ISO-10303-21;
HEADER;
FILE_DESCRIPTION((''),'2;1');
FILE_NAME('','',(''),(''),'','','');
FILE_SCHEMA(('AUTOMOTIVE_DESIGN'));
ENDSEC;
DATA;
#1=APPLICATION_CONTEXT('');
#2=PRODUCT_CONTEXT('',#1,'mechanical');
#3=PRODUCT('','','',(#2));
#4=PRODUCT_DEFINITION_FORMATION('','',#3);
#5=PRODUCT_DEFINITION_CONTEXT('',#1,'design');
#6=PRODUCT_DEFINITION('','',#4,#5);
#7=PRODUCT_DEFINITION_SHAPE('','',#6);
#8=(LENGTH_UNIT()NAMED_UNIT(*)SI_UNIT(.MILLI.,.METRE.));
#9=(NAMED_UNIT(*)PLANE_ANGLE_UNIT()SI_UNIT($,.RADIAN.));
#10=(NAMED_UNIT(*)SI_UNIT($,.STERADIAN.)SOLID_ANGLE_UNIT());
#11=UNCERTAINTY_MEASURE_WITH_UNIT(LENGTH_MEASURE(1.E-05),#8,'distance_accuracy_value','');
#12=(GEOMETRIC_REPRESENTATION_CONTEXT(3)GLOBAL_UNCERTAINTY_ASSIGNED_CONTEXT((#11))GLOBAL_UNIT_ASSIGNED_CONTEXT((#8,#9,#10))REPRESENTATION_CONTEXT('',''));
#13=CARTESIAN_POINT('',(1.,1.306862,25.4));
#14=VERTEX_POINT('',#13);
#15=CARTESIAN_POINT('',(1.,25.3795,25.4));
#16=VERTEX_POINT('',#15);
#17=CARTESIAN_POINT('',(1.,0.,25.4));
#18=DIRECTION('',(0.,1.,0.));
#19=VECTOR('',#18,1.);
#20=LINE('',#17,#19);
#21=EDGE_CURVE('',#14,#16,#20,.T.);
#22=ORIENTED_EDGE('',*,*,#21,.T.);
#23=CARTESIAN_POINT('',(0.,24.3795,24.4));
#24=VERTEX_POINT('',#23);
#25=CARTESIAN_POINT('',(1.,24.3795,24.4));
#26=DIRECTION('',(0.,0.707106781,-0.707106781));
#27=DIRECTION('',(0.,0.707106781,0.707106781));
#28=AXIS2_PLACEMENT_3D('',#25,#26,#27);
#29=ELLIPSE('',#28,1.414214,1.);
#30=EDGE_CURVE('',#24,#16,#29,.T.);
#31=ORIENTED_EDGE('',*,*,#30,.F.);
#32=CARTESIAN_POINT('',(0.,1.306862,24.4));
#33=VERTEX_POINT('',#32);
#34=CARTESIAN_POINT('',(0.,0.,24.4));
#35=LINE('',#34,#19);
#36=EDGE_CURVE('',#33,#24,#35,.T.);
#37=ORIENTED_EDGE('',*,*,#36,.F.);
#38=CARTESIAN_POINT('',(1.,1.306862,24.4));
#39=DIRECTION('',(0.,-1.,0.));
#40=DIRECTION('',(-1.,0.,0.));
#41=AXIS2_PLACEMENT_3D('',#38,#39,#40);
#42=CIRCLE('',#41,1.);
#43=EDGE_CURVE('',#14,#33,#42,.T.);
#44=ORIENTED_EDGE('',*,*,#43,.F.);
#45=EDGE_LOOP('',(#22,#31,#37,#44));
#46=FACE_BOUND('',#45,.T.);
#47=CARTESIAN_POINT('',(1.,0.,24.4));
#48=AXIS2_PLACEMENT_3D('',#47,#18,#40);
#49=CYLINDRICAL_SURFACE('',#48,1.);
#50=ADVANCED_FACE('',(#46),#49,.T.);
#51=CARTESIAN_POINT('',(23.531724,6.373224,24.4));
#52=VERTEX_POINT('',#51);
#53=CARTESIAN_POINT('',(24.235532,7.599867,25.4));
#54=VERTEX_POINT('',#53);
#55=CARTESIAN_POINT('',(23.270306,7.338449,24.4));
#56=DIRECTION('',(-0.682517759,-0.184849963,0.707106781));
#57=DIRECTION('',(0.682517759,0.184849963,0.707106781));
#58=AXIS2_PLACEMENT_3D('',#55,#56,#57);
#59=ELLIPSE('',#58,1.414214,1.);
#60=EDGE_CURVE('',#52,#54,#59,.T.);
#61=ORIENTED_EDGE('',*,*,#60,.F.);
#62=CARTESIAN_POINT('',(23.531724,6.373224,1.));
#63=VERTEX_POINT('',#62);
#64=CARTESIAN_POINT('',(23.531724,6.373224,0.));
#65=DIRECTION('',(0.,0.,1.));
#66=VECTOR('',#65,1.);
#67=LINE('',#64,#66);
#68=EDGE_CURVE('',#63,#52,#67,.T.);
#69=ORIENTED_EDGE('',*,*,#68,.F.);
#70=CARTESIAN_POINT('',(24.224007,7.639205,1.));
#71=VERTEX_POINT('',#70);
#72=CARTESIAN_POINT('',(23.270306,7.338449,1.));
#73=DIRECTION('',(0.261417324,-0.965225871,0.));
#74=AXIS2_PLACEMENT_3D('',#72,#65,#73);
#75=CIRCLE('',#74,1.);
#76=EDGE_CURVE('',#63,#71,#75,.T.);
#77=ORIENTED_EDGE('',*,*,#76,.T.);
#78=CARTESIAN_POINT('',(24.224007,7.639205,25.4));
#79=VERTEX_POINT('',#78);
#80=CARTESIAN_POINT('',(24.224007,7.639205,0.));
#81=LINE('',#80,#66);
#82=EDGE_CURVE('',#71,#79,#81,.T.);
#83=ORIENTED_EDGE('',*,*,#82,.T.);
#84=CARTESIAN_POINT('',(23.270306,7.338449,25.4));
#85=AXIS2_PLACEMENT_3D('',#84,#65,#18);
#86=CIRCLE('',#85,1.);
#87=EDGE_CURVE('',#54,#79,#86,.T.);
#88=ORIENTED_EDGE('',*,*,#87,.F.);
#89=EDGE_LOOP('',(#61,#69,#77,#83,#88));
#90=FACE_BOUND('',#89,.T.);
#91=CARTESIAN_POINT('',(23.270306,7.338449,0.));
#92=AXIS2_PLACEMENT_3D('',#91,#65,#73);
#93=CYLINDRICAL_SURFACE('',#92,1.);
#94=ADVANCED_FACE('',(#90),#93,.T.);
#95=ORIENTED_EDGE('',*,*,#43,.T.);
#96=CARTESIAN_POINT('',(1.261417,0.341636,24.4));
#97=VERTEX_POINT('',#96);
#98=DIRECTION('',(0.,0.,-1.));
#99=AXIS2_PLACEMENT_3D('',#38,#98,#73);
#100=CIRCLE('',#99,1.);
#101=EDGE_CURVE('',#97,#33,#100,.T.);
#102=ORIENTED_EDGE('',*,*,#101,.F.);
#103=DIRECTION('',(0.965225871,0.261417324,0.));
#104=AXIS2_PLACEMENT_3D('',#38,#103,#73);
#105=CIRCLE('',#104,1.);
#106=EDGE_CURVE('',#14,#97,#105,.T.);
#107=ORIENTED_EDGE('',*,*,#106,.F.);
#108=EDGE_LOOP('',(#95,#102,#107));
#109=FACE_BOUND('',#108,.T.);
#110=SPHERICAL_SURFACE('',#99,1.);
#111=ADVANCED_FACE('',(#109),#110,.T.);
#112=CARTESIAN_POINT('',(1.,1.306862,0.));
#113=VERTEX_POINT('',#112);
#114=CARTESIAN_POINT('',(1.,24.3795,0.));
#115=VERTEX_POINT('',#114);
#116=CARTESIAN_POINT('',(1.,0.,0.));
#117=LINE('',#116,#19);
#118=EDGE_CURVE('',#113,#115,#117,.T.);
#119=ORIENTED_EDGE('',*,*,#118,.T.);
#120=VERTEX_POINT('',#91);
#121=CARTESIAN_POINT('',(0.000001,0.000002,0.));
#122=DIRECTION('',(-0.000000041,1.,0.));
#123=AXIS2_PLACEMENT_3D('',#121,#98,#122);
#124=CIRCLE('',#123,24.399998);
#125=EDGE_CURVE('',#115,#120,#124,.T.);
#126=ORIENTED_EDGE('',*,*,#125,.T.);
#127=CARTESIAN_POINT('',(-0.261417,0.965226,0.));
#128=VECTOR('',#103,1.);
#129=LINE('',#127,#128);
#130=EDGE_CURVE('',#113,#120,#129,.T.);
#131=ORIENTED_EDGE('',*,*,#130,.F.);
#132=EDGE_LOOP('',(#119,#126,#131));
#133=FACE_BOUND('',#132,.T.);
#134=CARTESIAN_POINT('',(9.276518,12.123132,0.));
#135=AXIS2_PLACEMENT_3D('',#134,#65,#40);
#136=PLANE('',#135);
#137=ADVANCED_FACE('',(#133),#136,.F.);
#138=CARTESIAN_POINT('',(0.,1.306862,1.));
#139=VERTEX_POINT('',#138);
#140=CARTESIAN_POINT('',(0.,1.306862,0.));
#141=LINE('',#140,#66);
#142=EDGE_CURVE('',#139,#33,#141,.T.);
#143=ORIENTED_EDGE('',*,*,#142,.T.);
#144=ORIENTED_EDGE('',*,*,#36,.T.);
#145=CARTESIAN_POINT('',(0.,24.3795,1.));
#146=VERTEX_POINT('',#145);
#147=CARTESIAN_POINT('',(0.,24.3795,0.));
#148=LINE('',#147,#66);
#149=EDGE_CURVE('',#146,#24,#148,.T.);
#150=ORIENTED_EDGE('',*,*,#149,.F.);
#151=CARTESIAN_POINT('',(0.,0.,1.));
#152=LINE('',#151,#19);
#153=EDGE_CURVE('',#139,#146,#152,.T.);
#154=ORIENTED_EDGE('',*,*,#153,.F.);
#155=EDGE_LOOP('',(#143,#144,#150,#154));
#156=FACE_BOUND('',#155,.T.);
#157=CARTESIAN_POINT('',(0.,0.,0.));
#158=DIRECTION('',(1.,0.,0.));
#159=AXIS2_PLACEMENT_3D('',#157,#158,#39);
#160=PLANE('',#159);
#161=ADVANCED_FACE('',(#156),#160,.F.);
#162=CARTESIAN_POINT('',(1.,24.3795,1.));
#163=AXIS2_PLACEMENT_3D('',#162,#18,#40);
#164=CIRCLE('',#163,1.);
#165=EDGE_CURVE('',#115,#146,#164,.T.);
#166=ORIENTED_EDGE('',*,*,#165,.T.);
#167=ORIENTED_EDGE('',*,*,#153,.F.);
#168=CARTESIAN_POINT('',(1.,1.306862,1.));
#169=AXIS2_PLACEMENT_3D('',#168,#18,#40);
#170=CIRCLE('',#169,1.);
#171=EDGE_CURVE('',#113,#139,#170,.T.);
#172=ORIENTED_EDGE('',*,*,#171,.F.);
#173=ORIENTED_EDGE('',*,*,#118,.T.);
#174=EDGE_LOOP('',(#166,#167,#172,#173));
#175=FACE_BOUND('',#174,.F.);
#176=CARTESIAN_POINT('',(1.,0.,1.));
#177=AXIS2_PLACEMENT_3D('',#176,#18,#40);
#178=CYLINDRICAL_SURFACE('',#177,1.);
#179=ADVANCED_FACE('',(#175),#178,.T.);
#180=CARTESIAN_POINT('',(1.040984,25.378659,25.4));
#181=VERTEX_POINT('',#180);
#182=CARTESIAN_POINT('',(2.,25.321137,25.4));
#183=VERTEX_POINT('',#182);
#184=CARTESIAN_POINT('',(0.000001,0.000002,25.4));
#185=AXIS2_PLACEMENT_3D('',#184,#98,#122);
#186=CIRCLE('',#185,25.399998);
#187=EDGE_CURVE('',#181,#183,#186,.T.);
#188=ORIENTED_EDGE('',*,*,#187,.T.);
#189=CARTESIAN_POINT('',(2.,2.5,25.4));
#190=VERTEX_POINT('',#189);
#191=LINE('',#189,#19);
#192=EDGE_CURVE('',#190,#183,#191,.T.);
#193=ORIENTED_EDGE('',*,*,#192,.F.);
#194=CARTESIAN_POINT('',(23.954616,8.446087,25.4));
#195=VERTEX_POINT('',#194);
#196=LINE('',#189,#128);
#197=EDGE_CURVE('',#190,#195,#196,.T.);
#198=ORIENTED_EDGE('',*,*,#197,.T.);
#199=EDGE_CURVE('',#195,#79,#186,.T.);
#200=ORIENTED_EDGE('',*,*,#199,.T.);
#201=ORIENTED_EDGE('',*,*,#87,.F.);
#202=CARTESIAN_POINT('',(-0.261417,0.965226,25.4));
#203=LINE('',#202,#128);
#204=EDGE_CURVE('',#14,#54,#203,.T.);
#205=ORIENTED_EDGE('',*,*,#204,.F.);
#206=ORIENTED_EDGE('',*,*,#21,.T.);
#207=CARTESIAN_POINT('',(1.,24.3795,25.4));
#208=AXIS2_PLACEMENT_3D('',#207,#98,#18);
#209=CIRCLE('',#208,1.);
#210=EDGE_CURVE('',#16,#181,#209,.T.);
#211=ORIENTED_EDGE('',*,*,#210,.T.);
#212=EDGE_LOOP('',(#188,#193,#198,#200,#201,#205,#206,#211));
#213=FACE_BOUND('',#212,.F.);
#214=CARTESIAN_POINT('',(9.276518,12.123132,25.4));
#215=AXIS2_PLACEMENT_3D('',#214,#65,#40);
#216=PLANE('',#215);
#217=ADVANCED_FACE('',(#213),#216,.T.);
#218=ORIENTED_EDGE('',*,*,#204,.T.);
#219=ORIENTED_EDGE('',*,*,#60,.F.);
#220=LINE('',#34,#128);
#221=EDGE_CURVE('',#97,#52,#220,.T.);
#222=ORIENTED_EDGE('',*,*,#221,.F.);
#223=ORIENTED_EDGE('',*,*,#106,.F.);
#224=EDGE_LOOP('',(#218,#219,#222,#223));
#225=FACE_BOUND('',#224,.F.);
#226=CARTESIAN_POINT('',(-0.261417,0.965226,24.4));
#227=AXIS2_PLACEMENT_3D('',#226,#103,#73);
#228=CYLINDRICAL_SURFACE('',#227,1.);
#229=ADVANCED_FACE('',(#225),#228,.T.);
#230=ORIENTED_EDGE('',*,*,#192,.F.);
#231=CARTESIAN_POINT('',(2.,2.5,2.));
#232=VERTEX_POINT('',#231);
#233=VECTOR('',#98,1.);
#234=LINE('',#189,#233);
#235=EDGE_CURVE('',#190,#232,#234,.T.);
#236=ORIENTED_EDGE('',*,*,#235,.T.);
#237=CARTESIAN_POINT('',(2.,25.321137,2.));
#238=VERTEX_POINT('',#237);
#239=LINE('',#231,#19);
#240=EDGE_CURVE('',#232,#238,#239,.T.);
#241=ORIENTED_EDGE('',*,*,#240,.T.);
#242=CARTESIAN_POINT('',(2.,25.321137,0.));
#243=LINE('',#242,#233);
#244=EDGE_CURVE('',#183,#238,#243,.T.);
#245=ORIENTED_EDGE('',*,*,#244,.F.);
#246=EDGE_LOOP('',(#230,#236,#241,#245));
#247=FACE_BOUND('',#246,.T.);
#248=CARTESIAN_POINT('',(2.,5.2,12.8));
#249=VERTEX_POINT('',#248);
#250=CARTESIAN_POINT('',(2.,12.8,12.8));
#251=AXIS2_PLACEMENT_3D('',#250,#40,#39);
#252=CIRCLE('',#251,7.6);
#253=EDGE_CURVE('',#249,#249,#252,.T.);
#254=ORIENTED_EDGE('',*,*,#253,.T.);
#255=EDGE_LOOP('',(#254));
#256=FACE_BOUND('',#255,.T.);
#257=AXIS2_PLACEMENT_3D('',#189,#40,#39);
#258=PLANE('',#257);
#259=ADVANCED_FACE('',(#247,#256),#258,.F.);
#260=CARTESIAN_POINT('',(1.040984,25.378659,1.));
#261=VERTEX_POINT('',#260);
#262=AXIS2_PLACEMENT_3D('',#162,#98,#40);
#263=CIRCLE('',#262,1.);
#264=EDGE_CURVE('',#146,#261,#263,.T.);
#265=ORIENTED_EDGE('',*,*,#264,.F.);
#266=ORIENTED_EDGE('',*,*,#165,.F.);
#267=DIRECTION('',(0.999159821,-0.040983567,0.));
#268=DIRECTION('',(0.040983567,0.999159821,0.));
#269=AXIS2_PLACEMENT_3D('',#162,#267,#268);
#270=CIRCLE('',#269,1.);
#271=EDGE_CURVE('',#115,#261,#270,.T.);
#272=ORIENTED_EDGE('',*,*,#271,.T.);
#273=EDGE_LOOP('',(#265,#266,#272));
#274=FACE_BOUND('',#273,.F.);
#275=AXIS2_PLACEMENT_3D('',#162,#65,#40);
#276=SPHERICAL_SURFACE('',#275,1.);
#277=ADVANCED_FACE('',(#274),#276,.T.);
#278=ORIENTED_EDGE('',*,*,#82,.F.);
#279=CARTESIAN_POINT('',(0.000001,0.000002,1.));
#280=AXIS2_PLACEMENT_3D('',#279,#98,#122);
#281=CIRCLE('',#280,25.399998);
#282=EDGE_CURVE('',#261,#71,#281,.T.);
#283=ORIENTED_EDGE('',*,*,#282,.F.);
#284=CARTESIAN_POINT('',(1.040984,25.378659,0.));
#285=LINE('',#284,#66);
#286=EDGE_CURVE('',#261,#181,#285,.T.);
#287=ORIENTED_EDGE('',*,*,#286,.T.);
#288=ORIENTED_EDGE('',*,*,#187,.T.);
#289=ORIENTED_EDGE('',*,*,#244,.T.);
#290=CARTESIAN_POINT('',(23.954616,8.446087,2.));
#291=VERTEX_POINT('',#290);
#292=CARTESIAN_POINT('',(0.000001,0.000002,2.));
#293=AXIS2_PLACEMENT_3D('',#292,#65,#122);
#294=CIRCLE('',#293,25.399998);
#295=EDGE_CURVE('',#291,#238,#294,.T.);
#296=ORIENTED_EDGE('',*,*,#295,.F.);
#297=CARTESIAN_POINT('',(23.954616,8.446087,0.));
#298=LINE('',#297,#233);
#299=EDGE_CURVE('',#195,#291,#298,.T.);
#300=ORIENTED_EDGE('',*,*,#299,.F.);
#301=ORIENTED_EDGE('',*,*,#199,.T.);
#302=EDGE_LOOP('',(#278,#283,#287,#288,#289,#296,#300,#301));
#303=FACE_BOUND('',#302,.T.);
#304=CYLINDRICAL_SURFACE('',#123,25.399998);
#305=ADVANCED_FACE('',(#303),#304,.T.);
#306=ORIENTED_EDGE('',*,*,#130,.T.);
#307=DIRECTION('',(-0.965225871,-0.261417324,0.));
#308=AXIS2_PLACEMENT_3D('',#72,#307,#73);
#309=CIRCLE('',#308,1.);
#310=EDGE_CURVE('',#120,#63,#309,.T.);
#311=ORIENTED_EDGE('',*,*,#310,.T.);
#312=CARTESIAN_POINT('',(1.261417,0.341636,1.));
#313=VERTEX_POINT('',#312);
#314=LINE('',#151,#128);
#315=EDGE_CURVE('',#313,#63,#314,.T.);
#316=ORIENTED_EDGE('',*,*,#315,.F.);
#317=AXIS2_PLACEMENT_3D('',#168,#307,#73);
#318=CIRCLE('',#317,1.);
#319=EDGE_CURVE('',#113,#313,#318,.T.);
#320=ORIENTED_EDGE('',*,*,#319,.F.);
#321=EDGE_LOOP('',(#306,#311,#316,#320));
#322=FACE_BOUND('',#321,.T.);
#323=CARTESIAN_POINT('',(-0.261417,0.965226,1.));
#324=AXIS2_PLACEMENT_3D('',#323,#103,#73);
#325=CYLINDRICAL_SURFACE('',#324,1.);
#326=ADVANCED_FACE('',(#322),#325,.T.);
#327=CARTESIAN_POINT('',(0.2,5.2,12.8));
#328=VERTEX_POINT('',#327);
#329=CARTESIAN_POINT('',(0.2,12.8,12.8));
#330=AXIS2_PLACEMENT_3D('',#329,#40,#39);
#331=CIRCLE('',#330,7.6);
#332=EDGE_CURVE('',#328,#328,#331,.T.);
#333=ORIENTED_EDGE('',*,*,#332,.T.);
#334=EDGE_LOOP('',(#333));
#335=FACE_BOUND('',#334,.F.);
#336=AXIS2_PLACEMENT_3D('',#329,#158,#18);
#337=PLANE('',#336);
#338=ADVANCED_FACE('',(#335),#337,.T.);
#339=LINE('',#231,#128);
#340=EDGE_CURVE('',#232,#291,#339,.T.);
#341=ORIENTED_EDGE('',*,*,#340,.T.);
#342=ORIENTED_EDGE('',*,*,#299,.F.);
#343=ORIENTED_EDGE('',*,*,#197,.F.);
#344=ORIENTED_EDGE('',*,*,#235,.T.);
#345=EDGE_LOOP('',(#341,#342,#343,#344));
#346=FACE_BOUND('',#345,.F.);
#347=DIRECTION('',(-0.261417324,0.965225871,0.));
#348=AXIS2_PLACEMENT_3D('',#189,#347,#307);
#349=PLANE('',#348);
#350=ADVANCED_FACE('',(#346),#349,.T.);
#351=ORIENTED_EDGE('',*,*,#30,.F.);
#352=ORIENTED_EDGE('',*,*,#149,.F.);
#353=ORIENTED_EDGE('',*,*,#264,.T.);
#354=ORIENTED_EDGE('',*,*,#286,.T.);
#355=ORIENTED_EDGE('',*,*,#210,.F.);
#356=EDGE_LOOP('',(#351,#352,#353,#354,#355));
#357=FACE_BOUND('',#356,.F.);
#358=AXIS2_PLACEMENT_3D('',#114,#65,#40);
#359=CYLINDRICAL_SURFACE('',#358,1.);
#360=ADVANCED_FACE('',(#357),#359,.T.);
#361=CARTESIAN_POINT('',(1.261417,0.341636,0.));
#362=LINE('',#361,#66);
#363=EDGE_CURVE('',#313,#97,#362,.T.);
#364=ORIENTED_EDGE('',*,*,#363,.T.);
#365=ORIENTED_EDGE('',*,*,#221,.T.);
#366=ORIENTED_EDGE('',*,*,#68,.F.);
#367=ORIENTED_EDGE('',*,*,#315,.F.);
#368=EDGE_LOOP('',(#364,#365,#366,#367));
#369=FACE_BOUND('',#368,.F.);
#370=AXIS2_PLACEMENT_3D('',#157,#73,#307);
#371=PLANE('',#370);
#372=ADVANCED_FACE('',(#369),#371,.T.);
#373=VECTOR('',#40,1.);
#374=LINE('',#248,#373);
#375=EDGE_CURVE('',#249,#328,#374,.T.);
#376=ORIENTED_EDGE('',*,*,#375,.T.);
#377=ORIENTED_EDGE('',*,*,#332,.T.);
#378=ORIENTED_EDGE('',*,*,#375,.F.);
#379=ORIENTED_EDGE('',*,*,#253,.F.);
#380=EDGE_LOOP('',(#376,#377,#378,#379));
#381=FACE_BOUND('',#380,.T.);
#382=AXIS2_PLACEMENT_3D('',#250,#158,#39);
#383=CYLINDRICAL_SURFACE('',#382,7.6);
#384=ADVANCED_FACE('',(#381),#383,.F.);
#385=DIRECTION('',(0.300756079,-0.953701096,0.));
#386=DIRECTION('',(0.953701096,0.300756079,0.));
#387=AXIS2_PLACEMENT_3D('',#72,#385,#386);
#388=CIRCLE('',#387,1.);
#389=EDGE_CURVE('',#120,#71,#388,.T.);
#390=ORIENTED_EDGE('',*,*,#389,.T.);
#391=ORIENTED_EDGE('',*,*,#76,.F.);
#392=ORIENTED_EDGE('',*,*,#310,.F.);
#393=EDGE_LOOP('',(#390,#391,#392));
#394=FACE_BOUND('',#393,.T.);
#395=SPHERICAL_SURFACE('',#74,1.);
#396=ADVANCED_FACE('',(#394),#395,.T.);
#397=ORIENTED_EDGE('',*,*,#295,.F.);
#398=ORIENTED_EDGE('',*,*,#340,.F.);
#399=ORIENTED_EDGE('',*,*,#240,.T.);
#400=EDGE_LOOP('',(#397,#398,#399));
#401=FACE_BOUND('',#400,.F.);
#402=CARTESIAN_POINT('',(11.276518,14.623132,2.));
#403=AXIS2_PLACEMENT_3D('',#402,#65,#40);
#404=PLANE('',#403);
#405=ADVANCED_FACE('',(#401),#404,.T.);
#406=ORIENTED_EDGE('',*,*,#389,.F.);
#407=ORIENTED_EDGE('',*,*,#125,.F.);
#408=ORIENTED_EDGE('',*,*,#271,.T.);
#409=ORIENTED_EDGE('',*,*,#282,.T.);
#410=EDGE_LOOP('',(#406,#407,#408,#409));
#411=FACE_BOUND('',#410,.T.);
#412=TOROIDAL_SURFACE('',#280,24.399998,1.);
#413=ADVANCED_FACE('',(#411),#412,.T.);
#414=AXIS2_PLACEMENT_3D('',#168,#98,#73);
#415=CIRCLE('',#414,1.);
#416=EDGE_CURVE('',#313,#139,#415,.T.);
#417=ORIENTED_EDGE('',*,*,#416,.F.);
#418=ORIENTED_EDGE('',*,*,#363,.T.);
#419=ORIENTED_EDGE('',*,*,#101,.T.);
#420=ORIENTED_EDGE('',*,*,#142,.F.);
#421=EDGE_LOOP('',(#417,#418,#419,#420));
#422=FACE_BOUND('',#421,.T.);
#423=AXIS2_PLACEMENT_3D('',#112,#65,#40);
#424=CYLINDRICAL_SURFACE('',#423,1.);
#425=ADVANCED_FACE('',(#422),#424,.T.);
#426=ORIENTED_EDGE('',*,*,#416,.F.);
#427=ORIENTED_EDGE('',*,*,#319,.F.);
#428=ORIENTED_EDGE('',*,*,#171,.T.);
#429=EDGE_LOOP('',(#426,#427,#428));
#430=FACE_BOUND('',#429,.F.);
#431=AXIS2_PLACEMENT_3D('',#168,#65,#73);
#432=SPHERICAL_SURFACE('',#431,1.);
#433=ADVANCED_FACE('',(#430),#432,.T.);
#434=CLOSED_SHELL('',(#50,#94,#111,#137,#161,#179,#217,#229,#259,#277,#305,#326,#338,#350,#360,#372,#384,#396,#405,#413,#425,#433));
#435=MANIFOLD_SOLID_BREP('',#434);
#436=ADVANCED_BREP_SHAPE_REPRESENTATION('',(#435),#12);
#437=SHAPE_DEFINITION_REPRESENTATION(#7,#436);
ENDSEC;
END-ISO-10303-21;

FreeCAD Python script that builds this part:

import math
import FreeCAD as App
import Part
import Sketcher
from FreeCAD import Vector
Q = App.Units.Quantity


def edges_at(feature, points):
    """Names of the edges that pass closest to the given points."""
    edges = feature.Shape.Edges
    near = lambda p: min(range(len(edges)), key=lambda i: edges[i].distToShape(Part.Vertex(*p))[0])
    return sorted({f"Edge{near(p) + 1}" for p in points})

doc = App.newDocument("Part")
params = doc.addObject("Spreadsheet::Sheet", "Params")
for row, (alias, value) in enumerate([
    ("sketch1_radius", "25.399998 mm"),
    ("pad1_length", "25.4 mm"),
    ("sketch2_radius", "25.399998 mm"),
    ("pocket1_length", "23.4 mm"),
    ("sketch3_diameter", "15.2 mm"),
    ("pocket2_length", "1.8 mm"),
    ("fillet_radius", "1 mm"),
], start=1):
    params.set(f"A{row}", alias)
    params.set(f"B{row}", "=" + value)
    params.setAlias(f"B{row}", alias)

body = doc.addObject("PartDesign::Body", "Body")

# Sketch on XY plane
sketch1 = body.newObject("Sketcher::SketchObject", "Sketch")
sketch1.AttachmentSupport = (doc.getObject("XY_Plane"), [""])
sketch1.MapMode = "FlatFace"
sketch1.addGeometry(Part.LineSegment(Vector(0, 0, 0), Vector(0, -25.4, 0)), False)
sketch1.addGeometry(Part.ArcOfCircle(Part.Circle(Vector(0.000001, -0.000002, 0), Vector(0, 0, 1), 25.399998), math.radians(-90.000002), math.radians(-15.154175)), False)
sketch1.addGeometry(Part.LineSegment(Vector(24.516737, -6.64, 0), Vector(0, 0, 0)), False)
sketch1.addConstraint(Sketcher.Constraint("Coincident", 0, 2, 1, 1))
sketch1.addConstraint(Sketcher.Constraint("Coincident", 1, 2, 2, 1))
sketch1.addConstraint(Sketcher.Constraint("Coincident", 2, 2, 0, 1))
sketch1.addConstraint(Sketcher.Constraint("Vertical", 0))
sketch1.addConstraint(Sketcher.Constraint("Coincident", 1, 3, -1, 1))
sketch1.addConstraint(Sketcher.Constraint("Coincident", 2, 2, -1, 1))
sketch1.addConstraint(Sketcher.Constraint("Radius", 1, Q("25.399998 mm")))
sketch1.addConstraint(Sketcher.Constraint("DistanceY", 1, 2, -1, 1, Q("6.64 mm")))
sketch1.setExpression("Constraints[6]", "Params.sketch1_radius")
pad1 = body.newObject("PartDesign::Pad", "Pad")
pad1.Profile = sketch1
pad1.setExpression("Length", "Params.pad1_length")

# Sketch on XY plane
sketch2 = body.newObject("Sketcher::SketchObject", "Sketch001")
sketch2.AttachmentSupport = (doc.getObject("XY_Plane"), [""])
sketch2.MapMode = "FlatFace"
sketch2.AttachmentOffset = App.Placement(Vector(0, 0, 25.4), App.Rotation())
sketch2.addGeometry(Part.LineSegment(Vector(2, -2.5, 0), Vector(2, -27.9, 0)), False)
sketch2.addGeometry(Part.ArcOfCircle(Part.Circle(Vector(2.000001, -2.500002, 0), Vector(0, 0, 1), 25.399998), math.radians(-90.000002), math.radians(-15.154175)), False)
sketch2.addGeometry(Part.LineSegment(Vector(26.516737, -9.14, 0), Vector(2, -2.5, 0)), False)
sketch2.addConstraint(Sketcher.Constraint("Coincident", 0, 2, 1, 1))
sketch2.addConstraint(Sketcher.Constraint("Coincident", 1, 2, 2, 1))
sketch2.addConstraint(Sketcher.Constraint("Coincident", 2, 2, 0, 1))
sketch2.addConstraint(Sketcher.Constraint("Vertical", 0))
sketch2.addConstraint(Sketcher.Constraint("Coincident", 2, 2, 1, 3))
sketch2.addConstraint(Sketcher.Constraint("Radius", 1, Q("25.399998 mm")))
sketch2.addConstraint(Sketcher.Constraint("DistanceX", -1, 1, 1, 3, Q("2.000001 mm")))
sketch2.addConstraint(Sketcher.Constraint("DistanceY", 1, 3, -1, 1, Q("2.500002 mm")))
sketch2.addConstraint(Sketcher.Constraint("DistanceY", 1, 2, -1, 1, Q("9.14 mm")))
sketch2.setExpression("Constraints[5]", "Params.sketch2_radius")
pocket1 = body.newObject("PartDesign::Pocket", "Pocket")
pocket1.Profile = sketch2
pocket1.setExpression("Length", "Params.pocket1_length")

# Sketch on YZ plane
sketch3 = body.newObject("Sketcher::SketchObject", "Sketch002")
sketch3.AttachmentSupport = (doc.getObject("YZ_Plane"), [""])
sketch3.MapMode = "FlatFace"
sketch3.AttachmentOffset = App.Placement(Vector(0, 0, 2), App.Rotation())
sketch3.addGeometry(Part.Circle(Vector(-12.8, 12.8, 0), Vector(0, 0, 1), 7.6), False)
sketch3.addConstraint(Sketcher.Constraint("Diameter", 0, Q("15.2 mm")))
sketch3.addConstraint(Sketcher.Constraint("DistanceX", 0, 3, -1, 1, Q("12.8 mm")))
sketch3.addConstraint(Sketcher.Constraint("DistanceY", -1, 1, 0, 3, Q("12.8 mm")))
sketch3.setExpression("Constraints[0]", "Params.sketch3_diameter")
pocket2 = body.newObject("PartDesign::Pocket", "Pocket001")
pocket2.Profile = sketch3
pocket2.setExpression("Length", "Params.pocket2_length")
doc.recompute()

fillet = body.newObject("PartDesign::Fillet", "Fillet")
fillet.Base = (pocket2, edges_at(pocket2, [
    (0, 0, 12.7),
    (12.258, -3.32, 25.4),
    (24.517, -6.64, 12.7),
    (12.258, -3.32, 0),
    (0, -12.7, 0),
    (15.435, -20.172, 0),
    (0, -25.4, 12.7),
    (0, -12.7, 25.4),
]))
fillet.setExpression("Radius", "Params.fillet_radius")
body2 = doc.addObject("PartDesign::Body", "Body001")
doc.recompute()

mirroring = doc.addObject("Part::Mirroring", "Mirroring")
mirroring.Source = body
mirroring.Base = Vector(0, 0, 0)
mirroring.Normal = Vector(0, 1, 0)
body2.BaseFeature = mirroring
doc.recompute()
body.Visibility = False
mirroring.Visibility = False

doc.recompute()
